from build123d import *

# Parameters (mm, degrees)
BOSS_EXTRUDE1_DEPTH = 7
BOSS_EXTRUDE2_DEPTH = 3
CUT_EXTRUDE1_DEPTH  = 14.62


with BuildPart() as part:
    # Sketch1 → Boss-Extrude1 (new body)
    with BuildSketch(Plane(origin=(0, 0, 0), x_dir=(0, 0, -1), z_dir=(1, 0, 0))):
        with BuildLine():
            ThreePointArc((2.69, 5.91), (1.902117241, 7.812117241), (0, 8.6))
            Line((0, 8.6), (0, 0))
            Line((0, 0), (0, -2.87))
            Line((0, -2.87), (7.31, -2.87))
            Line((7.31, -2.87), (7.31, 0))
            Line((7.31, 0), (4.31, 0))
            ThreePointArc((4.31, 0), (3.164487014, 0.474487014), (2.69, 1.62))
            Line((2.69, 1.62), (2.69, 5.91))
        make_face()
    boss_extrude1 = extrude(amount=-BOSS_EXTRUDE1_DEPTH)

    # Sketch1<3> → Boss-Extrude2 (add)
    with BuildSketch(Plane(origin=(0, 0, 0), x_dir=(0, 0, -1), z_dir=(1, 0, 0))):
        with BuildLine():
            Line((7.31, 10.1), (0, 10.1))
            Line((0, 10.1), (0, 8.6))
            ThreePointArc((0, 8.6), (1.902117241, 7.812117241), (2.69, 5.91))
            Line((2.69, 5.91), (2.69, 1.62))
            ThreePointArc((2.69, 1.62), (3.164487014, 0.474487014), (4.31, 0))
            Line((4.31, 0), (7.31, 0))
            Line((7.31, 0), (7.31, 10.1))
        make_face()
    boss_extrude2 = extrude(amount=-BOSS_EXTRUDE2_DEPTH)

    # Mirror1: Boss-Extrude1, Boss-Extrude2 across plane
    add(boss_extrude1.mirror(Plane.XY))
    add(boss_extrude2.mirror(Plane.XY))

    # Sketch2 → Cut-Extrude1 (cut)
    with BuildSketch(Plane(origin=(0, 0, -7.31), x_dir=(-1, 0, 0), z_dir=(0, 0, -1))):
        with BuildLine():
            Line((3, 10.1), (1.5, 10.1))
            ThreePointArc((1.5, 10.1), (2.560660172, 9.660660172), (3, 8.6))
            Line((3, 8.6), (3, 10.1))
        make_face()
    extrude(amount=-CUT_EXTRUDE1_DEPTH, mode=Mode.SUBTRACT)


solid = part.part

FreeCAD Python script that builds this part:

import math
import FreeCAD as App
import Part
import Sketcher
from FreeCAD import Vector

doc = App.newDocument("Part")
body = doc.addObject("PartDesign::Body", "Body")

# Sketch on YZ plane
sketch1 = body.newObject("Sketcher::SketchObject", "Sketch")
sketch1.AttachmentSupport = (doc.getObject("YZ_Plane"), [""])
sketch1.MapMode = "FlatFace"
sketch1.addGeometry([
    Part.ArcOfCircle(Part.Circle(Vector(5.91, 0, 0), Vector(0, 0, 1), 2.69), math.radians(-90), math.radians(0)),  # 0
    Part.LineSegment(Vector(8.6, 0, 0), Vector(-2.87, 0, 0)),  # 1
    Part.LineSegment(Vector(-2.87, 0, 0), Vector(-2.87, -7.31, 0)),  # 2
    Part.LineSegment(Vector(-2.87, -7.31, 0), Vector(0, -7.31, 0)),  # 3
    Part.LineSegment(Vector(0, -7.31, 0), Vector(0, -4.31, 0)),  # 4
    Part.ArcOfCircle(Part.Circle(Vector(1.62, -4.31, 0), Vector(0, 0, 1), 1.62), math.radians(90), math.radians(180)),  # 5
    Part.LineSegment(Vector(1.62, -2.69, 0), Vector(5.91, -2.69, 0)),  # 6
], False)
sketch1.addConstraint([
    Sketcher.Constraint("Coincident", 0, 2, 1, 1),
    Sketcher.Constraint("Coincident", 1, 2, 2, 1),
    Sketcher.Constraint("Coincident", 2, 2, 3, 1),
    Sketcher.Constraint("Coincident", 3, 2, 4, 1),
    Sketcher.Constraint("Tangent", 4, 2, 5, 2),
    Sketcher.Constraint("Tangent", 5, 1, 6, 1),
    Sketcher.Constraint("Tangent", 6, 2, 0, 1),
    Sketcher.Constraint("Horizontal", 1),
    Sketcher.Constraint("Vertical", 2),
    Sketcher.Constraint("Horizontal", 3),
    Sketcher.Constraint("Vertical", 4),
    Sketcher.Constraint("Horizontal", 6),
    Sketcher.Constraint("PointOnObject", 0, 3, -1),
    Sketcher.Constraint("PointOnObject", 0, 2, -1),
    Sketcher.Constraint("PointOnObject", 3, 2, -2),
    Sketcher.Constraint("DistanceY", 4, 1, 4, 2, 3.0),
    Sketcher.Constraint("Radius", 0, 2.69),
    Sketcher.Constraint("Radius", 5, 1.62),
    Sketcher.Constraint("DistanceX", 1, 2, 1, 1, 11.47),
    Sketcher.Constraint("DistanceX", 3, 1, 3, 2, 2.87),
])
pad1 = body.newObject("PartDesign::Pad", "Pad")
pad1.Profile = sketch1
pad1.Length = 7
pad1.Reversed = True

# Sketch on YZ plane
sketch2 = body.newObject("Sketcher::SketchObject", "Sketch001")
sketch2.AttachmentSupport = (doc.getObject("YZ_Plane"), [""])
sketch2.MapMode = "FlatFace"
sketch2.addGeometry([
    Part.LineSegment(Vector(10.1, -7.31, 0), Vector(10.1, 0, 0)),  # 0
    Part.LineSegment(Vector(10.1, 0, 0), Vector(8.6, 0, 0)),  # 1
    Part.ArcOfCircle(Part.Circle(Vector(5.91, 0, 0), Vector(0, 0, 1), 2.69), math.radians(-90), math.radians(0)),  # 2
    Part.LineSegment(Vector(5.91, -2.69, 0), Vector(1.62, -2.69, 0)),  # 3
    Part.ArcOfCircle(Part.Circle(Vector(1.62, -4.31, 0), Vector(0, 0, 1), 1.62), math.radians(90), math.radians(180)),  # 4
    Part.LineSegment(Vector(0, -4.31, 0), Vector(0, -7.31, 0)),  # 5
    Part.LineSegment(Vector(0, -7.31, 0), Vector(10.1, -7.31, 0)),  # 6
], False)
sketch2.addConstraint([
    Sketcher.Constraint("Coincident", 0, 2, 1, 1),
    Sketcher.Constraint("Coincident", 1, 2, 2, 2),
    Sketcher.Constraint("Tangent", 2, 1, 3, 1),
    Sketcher.Constraint("Tangent", 3, 2, 4, 1),
    Sketcher.Constraint("Tangent", 4, 2, 5, 1),
    Sketcher.Constraint("Coincident", 5, 2, 6, 1),
    Sketcher.Constraint("Coincident", 6, 2, 0, 1),
    Sketcher.Constraint("Vertical", 0),
    Sketcher.Constraint("Horizontal", 1),
    Sketcher.Constraint("Horizontal", 3),
    Sketcher.Constraint("Vertical", 5),
    Sketcher.Constraint("Horizontal", 6),
    Sketcher.Constraint("PointOnObject", 2, 3, -1),
    Sketcher.Constraint("PointOnObject", 0, 2, -1),
    Sketcher.Constraint("PointOnObject", 4, 2, -2),
    Sketcher.Constraint("DistanceY", 5, 2, 5, 1, 3.0),
    Sketcher.Constraint("Radius", 2, 2.69),
    Sketcher.Constraint("Radius", 4, 1.62),
    Sketcher.Constraint("DistanceX", 1, 2, 1, 1, 1.5),
    Sketcher.Constraint("DistanceX", 6, 1, 6, 2, 10.1),
])
pad2 = body.newObject("PartDesign::Pad", "Pad001")
pad2.Profile = sketch2
pad2.Length = 3
pad2.Reversed = True
doc.recompute()

mirrored = body.newObject("PartDesign::Mirrored", "Mirrored")
mirrored.Originals = [pad1, pad2]
mirrored.MirrorPlane = (doc.getObject("XY_Plane"), [""])
body.Tip = mirrored

# Sketch on XY plane
sketch3 = body.newObject("Sketcher::SketchObject", "Sketch002")
sketch3.AttachmentSupport = (doc.getObject("XY_Plane"), [""])
sketch3.MapMode = "FlatFace"
sketch3.AttachmentOffset = App.Placement(Vector(0, 0, -7.31), App.Rotation())
sketch3.addGeometry([
    Part.LineSegment(Vector(-3, 10.1, 0), Vector(-1.5, 10.1, 0)),
    Part.ArcOfCircle(Part.Circle(Vector(-1.5, 8.6, 0), Vector(0, 0, 1), 1.5), math.radians(90), math.radians(180)),
    Part.LineSegment(Vector(-3, 8.6, 0), Vector(-3, 10.1, 0)),
], False)
sketch3.addConstraint([
    Sketcher.Constraint("Tangent", 0, 2, 1, 1),
    Sketcher.Constraint("Tangent", 1, 2, 2, 1),
    Sketcher.Constraint("Coincident", 2, 2, 0, 1),
    Sketcher.Constraint("Horizontal", 0),
    Sketcher.Constraint("Vertical", 2),
    Sketcher.Constraint("Radius", 1, 1.5),
    Sketcher.Constraint("DistanceX", 1, 2, -1, 1, 3.0),
    Sketcher.Constraint("DistanceY", -1, 1, 1, 3, 8.6),
])
pocket1 = body.newObject("PartDesign::Pocket", "Pocket")
pocket1.Profile = sketch3
pocket1.Length = 14.62
pocket1.Reversed = True

doc.recompute()
